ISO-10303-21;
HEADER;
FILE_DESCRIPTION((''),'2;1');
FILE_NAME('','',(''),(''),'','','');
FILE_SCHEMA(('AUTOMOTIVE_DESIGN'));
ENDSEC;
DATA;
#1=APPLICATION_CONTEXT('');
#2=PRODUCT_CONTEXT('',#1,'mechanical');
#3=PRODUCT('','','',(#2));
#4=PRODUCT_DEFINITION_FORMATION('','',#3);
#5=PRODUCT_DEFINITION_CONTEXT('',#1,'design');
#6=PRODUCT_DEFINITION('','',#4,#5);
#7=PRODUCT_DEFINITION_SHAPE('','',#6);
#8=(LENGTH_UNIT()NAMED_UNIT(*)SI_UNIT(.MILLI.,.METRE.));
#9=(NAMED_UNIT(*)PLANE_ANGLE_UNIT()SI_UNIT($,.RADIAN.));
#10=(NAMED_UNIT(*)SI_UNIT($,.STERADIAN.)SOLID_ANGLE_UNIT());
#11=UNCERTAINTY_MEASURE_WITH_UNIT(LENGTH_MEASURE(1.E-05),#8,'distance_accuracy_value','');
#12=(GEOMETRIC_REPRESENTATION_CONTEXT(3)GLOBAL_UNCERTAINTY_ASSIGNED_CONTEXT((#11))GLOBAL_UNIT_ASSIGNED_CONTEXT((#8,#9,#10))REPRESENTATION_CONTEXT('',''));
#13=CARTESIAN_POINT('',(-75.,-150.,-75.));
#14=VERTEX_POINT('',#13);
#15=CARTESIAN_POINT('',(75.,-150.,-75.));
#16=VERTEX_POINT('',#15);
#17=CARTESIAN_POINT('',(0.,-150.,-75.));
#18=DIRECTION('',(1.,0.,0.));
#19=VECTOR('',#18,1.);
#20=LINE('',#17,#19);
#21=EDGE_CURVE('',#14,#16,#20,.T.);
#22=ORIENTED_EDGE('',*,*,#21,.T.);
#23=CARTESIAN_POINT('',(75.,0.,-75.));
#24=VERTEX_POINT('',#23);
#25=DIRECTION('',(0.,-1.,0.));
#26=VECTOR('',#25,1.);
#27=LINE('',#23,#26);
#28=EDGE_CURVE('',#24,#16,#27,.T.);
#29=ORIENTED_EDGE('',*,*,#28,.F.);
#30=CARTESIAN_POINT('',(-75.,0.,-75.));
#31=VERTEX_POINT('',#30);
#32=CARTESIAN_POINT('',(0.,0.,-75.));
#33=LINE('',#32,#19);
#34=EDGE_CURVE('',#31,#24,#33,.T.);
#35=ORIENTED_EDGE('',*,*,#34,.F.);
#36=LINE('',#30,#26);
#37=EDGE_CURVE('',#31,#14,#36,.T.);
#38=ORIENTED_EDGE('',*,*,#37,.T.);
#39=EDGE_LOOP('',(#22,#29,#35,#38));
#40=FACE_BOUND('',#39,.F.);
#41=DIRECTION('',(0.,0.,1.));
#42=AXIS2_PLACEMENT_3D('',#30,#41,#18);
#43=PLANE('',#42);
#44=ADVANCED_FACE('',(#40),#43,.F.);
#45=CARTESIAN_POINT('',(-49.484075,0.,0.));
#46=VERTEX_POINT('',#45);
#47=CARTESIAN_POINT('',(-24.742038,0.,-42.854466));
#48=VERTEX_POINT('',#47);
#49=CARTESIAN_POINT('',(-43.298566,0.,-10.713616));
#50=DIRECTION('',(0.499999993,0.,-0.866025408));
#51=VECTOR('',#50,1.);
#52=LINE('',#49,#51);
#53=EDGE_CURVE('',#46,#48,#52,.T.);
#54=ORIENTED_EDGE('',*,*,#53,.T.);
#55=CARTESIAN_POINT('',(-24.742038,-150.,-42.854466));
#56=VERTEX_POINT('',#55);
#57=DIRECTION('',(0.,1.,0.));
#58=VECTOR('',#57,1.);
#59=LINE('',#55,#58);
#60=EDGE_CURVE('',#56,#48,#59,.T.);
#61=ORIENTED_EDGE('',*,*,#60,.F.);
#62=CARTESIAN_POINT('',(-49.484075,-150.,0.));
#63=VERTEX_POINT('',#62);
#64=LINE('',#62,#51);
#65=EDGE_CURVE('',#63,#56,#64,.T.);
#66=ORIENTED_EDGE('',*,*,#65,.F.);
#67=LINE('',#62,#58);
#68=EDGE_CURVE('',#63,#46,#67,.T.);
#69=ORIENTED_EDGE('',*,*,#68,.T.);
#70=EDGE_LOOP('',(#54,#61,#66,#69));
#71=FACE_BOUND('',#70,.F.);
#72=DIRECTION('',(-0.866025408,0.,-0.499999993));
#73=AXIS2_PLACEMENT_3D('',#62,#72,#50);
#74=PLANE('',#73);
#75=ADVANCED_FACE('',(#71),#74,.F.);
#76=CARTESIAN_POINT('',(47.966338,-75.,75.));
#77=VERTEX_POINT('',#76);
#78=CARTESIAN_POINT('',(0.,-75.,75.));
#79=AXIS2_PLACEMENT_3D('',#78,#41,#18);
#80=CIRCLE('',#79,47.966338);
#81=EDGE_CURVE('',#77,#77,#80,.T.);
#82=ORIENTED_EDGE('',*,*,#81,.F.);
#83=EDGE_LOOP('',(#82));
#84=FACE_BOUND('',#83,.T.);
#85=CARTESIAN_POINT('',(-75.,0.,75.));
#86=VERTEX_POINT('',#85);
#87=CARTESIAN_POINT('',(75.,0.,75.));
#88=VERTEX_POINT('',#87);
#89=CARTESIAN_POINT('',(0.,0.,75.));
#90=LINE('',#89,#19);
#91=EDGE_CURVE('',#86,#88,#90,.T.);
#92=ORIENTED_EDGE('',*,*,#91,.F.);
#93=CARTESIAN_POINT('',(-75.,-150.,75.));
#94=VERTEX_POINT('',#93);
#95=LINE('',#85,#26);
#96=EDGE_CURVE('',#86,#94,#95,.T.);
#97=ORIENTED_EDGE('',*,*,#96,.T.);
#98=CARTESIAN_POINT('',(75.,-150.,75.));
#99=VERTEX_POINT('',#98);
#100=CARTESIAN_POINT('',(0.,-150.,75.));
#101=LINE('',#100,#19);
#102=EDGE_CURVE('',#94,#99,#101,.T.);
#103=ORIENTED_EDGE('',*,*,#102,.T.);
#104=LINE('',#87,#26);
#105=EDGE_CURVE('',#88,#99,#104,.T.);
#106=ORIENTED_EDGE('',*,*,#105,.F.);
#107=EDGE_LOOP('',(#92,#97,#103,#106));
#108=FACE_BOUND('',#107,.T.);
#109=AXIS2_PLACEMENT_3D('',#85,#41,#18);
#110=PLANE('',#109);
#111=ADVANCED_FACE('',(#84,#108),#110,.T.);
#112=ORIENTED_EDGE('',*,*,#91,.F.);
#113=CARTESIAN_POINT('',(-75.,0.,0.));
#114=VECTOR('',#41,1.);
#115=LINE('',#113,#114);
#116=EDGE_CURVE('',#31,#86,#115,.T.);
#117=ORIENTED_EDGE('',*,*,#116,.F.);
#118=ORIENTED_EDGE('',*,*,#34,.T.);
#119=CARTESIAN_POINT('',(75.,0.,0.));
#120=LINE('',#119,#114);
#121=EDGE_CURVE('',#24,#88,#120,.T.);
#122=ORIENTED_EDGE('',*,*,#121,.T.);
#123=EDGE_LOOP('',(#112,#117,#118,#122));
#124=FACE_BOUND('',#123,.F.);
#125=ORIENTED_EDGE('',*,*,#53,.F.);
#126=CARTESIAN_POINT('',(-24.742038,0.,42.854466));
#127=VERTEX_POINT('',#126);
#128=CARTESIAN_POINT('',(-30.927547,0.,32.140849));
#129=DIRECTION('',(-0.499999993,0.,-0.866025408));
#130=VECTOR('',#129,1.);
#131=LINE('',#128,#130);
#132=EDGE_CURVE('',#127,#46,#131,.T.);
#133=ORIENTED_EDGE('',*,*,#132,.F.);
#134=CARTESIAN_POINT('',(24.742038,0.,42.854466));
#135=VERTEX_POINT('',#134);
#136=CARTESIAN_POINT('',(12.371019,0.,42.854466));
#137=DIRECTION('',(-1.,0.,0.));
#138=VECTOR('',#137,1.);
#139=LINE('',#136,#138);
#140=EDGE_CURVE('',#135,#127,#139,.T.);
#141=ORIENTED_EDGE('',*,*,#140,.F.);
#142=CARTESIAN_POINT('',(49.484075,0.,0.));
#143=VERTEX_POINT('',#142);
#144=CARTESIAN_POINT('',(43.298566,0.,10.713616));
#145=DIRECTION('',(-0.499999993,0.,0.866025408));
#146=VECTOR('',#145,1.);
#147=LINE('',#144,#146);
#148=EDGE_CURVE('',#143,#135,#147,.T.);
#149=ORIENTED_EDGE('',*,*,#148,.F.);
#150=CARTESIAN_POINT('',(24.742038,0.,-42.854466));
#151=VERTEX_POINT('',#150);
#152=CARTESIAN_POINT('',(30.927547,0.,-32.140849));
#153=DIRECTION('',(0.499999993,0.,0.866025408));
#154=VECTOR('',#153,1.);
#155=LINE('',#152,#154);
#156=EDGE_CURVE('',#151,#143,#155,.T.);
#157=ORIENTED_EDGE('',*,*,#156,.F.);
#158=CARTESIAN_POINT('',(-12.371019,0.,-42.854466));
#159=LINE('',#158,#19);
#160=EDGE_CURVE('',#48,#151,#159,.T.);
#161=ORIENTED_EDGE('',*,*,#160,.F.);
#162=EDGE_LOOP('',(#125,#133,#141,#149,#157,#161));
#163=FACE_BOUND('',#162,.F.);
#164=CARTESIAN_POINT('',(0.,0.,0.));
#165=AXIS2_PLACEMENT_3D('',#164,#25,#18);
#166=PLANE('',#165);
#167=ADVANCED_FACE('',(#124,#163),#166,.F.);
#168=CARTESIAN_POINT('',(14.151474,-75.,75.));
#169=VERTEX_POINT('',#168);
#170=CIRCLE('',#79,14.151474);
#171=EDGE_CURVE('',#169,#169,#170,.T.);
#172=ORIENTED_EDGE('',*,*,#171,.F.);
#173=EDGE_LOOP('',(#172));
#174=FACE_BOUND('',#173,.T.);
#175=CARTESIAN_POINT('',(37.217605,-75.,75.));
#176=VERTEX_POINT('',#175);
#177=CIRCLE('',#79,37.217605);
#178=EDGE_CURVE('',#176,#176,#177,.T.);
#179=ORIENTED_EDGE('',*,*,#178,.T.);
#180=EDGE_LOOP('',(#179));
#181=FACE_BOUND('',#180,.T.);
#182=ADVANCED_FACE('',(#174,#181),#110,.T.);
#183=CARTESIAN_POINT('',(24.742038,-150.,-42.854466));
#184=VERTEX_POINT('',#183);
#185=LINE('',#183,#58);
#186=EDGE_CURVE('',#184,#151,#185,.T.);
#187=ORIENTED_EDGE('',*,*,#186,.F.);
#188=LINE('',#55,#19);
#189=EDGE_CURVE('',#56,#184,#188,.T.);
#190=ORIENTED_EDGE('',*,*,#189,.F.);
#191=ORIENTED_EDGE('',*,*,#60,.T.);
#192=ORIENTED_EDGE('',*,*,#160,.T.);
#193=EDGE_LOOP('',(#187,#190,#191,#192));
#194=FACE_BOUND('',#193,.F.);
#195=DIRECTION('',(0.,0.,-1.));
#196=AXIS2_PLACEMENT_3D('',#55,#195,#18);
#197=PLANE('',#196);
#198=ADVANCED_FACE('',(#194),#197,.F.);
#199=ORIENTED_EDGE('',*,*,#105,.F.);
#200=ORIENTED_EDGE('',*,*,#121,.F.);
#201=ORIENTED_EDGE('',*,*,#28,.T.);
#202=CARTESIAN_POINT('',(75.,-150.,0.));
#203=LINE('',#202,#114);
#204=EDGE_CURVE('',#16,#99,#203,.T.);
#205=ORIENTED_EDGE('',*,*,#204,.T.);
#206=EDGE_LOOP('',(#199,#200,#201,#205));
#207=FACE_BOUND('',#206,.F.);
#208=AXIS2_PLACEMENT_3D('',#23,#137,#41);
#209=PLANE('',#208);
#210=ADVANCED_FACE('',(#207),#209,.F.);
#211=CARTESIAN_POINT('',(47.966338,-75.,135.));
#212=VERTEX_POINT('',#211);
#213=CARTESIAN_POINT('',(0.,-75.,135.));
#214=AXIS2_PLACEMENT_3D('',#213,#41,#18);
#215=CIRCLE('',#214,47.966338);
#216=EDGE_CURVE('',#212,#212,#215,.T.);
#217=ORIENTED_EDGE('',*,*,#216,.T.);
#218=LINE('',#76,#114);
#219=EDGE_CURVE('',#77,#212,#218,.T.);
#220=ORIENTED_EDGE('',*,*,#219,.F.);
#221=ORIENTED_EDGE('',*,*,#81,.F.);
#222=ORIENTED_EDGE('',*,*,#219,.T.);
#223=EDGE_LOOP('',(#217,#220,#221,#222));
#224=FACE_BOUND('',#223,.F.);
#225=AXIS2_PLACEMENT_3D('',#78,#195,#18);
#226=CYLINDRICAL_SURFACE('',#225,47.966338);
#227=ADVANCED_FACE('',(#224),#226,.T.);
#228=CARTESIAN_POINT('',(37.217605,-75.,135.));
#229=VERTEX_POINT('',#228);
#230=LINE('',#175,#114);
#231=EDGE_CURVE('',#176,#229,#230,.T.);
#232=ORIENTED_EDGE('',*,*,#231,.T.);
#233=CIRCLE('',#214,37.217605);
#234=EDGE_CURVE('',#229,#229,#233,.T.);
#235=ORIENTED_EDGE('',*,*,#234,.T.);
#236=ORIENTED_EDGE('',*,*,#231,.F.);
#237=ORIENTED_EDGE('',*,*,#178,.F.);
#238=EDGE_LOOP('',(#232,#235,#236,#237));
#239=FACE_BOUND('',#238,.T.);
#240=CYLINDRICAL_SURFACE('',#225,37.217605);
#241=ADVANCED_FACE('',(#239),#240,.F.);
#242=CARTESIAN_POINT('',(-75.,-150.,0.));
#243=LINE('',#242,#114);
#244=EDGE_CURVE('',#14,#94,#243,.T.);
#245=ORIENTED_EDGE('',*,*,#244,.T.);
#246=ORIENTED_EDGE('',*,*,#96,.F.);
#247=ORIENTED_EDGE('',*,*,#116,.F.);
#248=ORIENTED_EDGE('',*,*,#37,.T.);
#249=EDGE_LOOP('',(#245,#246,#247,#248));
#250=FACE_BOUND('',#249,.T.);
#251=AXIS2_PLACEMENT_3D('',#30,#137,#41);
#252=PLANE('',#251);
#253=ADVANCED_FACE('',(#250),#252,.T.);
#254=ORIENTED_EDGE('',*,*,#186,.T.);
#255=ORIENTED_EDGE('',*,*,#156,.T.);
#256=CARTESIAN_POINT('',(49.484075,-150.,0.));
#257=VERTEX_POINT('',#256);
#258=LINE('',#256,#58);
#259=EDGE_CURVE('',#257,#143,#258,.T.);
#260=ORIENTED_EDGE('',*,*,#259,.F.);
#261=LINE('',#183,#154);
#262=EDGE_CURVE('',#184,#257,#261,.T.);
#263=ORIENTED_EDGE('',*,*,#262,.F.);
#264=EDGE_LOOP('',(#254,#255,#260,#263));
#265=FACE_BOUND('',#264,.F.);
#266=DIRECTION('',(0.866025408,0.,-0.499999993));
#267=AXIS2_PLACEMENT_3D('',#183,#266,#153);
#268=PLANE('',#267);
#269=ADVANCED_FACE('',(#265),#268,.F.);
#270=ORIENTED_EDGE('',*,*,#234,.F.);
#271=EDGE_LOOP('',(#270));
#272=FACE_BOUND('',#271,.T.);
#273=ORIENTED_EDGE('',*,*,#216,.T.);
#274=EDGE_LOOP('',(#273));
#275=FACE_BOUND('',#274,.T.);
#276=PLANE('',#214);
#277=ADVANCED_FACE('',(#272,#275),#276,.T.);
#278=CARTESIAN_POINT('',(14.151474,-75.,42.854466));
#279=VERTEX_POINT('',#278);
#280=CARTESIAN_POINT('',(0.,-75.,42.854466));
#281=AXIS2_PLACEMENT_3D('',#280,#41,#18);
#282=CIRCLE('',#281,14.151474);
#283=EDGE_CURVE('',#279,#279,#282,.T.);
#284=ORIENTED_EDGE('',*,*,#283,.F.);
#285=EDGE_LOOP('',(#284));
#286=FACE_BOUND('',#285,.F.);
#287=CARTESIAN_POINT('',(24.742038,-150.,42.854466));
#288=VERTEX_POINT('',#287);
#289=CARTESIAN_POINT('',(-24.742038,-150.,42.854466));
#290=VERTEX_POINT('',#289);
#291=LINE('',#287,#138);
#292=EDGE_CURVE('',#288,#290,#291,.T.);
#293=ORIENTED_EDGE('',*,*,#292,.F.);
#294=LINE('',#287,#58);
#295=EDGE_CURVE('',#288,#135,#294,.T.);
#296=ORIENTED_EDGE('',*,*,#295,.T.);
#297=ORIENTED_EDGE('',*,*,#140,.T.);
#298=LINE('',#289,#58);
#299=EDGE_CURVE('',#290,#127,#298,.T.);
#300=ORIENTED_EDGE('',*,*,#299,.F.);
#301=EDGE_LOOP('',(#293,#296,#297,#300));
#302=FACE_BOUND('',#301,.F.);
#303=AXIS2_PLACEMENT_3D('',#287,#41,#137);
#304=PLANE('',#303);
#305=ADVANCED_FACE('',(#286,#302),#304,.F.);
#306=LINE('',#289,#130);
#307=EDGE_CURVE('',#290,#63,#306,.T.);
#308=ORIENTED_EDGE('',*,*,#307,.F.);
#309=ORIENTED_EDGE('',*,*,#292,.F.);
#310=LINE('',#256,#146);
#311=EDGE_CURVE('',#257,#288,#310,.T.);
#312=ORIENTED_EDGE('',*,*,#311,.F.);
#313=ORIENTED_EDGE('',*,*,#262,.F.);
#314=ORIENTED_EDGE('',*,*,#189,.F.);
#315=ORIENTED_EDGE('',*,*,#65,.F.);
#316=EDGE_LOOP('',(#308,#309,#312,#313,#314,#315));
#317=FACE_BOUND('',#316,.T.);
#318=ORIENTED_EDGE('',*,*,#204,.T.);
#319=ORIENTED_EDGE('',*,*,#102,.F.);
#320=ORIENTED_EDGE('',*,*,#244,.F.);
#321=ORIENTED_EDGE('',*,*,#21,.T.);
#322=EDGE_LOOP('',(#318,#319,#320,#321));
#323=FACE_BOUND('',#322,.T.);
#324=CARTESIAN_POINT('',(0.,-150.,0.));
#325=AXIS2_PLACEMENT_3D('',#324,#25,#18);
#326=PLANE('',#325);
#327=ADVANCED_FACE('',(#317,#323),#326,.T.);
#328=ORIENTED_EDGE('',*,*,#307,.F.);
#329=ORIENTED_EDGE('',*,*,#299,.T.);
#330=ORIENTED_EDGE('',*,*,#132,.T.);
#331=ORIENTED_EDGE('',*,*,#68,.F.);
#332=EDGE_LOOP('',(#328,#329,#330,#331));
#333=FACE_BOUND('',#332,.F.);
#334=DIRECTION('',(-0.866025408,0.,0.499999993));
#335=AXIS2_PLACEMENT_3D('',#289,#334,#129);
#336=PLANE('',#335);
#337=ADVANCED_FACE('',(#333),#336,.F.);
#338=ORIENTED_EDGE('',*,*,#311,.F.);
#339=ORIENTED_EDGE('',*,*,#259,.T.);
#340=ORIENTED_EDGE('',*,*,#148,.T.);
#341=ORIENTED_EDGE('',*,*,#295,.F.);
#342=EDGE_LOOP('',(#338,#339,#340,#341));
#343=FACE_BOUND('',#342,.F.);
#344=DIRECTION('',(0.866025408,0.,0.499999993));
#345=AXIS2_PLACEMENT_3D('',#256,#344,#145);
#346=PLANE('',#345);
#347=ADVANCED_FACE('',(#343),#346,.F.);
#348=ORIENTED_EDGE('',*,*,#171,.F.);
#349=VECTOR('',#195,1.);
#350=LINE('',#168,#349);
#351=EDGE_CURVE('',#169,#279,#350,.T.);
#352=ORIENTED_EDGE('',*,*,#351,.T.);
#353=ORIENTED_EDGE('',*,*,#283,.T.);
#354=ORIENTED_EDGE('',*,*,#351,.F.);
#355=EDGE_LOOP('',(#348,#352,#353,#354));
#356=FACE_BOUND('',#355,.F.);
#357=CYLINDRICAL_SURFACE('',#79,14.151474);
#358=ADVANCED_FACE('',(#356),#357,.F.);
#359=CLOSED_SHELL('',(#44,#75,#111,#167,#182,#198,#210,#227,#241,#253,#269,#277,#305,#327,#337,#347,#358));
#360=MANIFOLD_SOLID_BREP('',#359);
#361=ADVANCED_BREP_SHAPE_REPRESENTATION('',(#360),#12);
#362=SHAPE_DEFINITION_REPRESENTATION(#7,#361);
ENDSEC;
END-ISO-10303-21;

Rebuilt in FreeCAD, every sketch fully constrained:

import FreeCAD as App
import Part
import Sketcher
from FreeCAD import Vector
Q = App.Units.Quantity


def add_polygon(sketch, points):
    """Adds a closed chain of lines whose ends are joined by coincident constraints."""
    first, n = sketch.GeometryCount, len(points)
    for a, b in zip(points, points[1:] + points[:1]):
        sketch.addGeometry(Part.LineSegment(App.Vector(*a, 0), App.Vector(*b, 0)), False)
    for i in range(n):
        sketch.addConstraint(Sketcher.Constraint("Coincident", first + i, 2, first + (i + 1) % n, 1))

doc = App.newDocument("Part")
body = doc.addObject("PartDesign::Body", "Body")

sketch1 = body.newObject("Sketcher::SketchObject", "Sketch")
sketch1.AttachmentSupport = (doc.getObject("XZ_Plane"), [""])
sketch1.MapMode = "FlatFace"
add_polygon(sketch1, [(-75, 75), (-75, -75), (75, -75), (75, 75)])
sketch1.addConstraint([
    Sketcher.Constraint("Vertical", 0),
    Sketcher.Constraint("Horizontal", 1),
    Sketcher.Constraint("Vertical", 2),
    Sketcher.Constraint("Horizontal", 3),
    Sketcher.Constraint("Symmetric", 0, 2, 2, 2, -1, 1),
    Sketcher.Constraint("Equal", 3, 0),
    Sketcher.Constraint("DistanceX", 1, 1, 1, 2, Q("150 mm")),
])
pad1 = body.newObject("PartDesign::Pad", "Pad")
pad1.Profile = sketch1
pad1.Length = 150

sketch2 = body.newObject("Sketcher::SketchObject", "Sketch001")
sketch2.AttachmentSupport = (doc.getObject("XY_Plane"), [""])
sketch2.MapMode = "FlatFace"
sketch2.AttachmentOffset = App.Placement(Vector(0, 0, 75), App.Rotation())
sketch2.addGeometry([
    Part.Circle(Vector(0, -75, 0), Vector(0, 0, 1), 48),
    Part.Circle(Vector(0, -75, 0), Vector(0, 0, 1), 37),
], False)
sketch2.addConstraint([
    Sketcher.Constraint("Coincident", 1, 3, 0, 3),
    Sketcher.Constraint("PointOnObject", 0, 3, -2),
    Sketcher.Constraint("DistanceY", 0, 3, -1, 1, Q("75 mm")),
    Sketcher.Constraint("Diameter", 1, Q("74.43521 mm")),
    Sketcher.Constraint("Diameter", 0, Q("95.932676 mm")),
])
pad2 = body.newObject("PartDesign::Pad", "Pad001")
pad2.Profile = sketch2
pad2.Length = 60

sketch3 = body.newObject("Sketcher::SketchObject", "Sketch002")
sketch3.AttachmentSupport = (doc.getObject("XZ_Plane"), [""])
sketch3.MapMode = "FlatFace"
sketch3.AttachmentOffset = App.Placement(Vector(0, 0, 150), App.Rotation())
add_polygon(sketch3, [(49, 0), (25, 43), (-25, 43), (-49, 0), (-25, -43), (25, -43)])
sketch3.addConstraint([
    Sketcher.Constraint("Horizontal", 1),
    Sketcher.Constraint("Horizontal", 4),
    Sketcher.Constraint("Symmetric", 0, 2, 3, 2, -1, 1),
    Sketcher.Constraint("Symmetric", 2, 2, 5, 2, -1, 1),
    Sketcher.Constraint("PointOnObject", 2, 2, -1),
    Sketcher.Constraint("Parallel", 2, 5),
    Sketcher.Constraint("Vertical", 1, 2, 3, 2),
    Sketcher.Constraint("Angle", 0, Q("120 deg")),
    Sketcher.Constraint("DistanceX", 1, 2, 1, 1, Q("49.484076 mm")),
    Sketcher.Constraint("DistanceX", 2, 2, 5, 2, Q("98.96815 mm")),
])
pocket1 = body.newObject("PartDesign::Pocket", "Pocket")
pocket1.Profile = sketch3
pocket1.Type = "ThroughAll"

sketch4 = body.newObject("Sketcher::SketchObject", "Sketch003")
sketch4.AttachmentSupport = (doc.getObject("XY_Plane"), [""])
sketch4.MapMode = "FlatFace"
sketch4.AttachmentOffset = App.Placement(Vector(0, 0, 75), App.Rotation())
sketch4.addGeometry(Part.Circle(Vector(0, -75, 0), Vector(0, 0, 1), 14), False)
sketch4.addConstraint([
    Sketcher.Constraint("PointOnObject", 0, 3, -2),
    Sketcher.Constraint("DistanceY", 0, 3, -1, 1, Q("75 mm")),
    Sketcher.Constraint("Diameter", 0, Q("28.302948 mm")),
])
pocket2 = body.newObject("PartDesign::Pocket", "Pocket001")
pocket2.Profile = sketch4
pocket2.Length = 32.145534

doc.recompute()
